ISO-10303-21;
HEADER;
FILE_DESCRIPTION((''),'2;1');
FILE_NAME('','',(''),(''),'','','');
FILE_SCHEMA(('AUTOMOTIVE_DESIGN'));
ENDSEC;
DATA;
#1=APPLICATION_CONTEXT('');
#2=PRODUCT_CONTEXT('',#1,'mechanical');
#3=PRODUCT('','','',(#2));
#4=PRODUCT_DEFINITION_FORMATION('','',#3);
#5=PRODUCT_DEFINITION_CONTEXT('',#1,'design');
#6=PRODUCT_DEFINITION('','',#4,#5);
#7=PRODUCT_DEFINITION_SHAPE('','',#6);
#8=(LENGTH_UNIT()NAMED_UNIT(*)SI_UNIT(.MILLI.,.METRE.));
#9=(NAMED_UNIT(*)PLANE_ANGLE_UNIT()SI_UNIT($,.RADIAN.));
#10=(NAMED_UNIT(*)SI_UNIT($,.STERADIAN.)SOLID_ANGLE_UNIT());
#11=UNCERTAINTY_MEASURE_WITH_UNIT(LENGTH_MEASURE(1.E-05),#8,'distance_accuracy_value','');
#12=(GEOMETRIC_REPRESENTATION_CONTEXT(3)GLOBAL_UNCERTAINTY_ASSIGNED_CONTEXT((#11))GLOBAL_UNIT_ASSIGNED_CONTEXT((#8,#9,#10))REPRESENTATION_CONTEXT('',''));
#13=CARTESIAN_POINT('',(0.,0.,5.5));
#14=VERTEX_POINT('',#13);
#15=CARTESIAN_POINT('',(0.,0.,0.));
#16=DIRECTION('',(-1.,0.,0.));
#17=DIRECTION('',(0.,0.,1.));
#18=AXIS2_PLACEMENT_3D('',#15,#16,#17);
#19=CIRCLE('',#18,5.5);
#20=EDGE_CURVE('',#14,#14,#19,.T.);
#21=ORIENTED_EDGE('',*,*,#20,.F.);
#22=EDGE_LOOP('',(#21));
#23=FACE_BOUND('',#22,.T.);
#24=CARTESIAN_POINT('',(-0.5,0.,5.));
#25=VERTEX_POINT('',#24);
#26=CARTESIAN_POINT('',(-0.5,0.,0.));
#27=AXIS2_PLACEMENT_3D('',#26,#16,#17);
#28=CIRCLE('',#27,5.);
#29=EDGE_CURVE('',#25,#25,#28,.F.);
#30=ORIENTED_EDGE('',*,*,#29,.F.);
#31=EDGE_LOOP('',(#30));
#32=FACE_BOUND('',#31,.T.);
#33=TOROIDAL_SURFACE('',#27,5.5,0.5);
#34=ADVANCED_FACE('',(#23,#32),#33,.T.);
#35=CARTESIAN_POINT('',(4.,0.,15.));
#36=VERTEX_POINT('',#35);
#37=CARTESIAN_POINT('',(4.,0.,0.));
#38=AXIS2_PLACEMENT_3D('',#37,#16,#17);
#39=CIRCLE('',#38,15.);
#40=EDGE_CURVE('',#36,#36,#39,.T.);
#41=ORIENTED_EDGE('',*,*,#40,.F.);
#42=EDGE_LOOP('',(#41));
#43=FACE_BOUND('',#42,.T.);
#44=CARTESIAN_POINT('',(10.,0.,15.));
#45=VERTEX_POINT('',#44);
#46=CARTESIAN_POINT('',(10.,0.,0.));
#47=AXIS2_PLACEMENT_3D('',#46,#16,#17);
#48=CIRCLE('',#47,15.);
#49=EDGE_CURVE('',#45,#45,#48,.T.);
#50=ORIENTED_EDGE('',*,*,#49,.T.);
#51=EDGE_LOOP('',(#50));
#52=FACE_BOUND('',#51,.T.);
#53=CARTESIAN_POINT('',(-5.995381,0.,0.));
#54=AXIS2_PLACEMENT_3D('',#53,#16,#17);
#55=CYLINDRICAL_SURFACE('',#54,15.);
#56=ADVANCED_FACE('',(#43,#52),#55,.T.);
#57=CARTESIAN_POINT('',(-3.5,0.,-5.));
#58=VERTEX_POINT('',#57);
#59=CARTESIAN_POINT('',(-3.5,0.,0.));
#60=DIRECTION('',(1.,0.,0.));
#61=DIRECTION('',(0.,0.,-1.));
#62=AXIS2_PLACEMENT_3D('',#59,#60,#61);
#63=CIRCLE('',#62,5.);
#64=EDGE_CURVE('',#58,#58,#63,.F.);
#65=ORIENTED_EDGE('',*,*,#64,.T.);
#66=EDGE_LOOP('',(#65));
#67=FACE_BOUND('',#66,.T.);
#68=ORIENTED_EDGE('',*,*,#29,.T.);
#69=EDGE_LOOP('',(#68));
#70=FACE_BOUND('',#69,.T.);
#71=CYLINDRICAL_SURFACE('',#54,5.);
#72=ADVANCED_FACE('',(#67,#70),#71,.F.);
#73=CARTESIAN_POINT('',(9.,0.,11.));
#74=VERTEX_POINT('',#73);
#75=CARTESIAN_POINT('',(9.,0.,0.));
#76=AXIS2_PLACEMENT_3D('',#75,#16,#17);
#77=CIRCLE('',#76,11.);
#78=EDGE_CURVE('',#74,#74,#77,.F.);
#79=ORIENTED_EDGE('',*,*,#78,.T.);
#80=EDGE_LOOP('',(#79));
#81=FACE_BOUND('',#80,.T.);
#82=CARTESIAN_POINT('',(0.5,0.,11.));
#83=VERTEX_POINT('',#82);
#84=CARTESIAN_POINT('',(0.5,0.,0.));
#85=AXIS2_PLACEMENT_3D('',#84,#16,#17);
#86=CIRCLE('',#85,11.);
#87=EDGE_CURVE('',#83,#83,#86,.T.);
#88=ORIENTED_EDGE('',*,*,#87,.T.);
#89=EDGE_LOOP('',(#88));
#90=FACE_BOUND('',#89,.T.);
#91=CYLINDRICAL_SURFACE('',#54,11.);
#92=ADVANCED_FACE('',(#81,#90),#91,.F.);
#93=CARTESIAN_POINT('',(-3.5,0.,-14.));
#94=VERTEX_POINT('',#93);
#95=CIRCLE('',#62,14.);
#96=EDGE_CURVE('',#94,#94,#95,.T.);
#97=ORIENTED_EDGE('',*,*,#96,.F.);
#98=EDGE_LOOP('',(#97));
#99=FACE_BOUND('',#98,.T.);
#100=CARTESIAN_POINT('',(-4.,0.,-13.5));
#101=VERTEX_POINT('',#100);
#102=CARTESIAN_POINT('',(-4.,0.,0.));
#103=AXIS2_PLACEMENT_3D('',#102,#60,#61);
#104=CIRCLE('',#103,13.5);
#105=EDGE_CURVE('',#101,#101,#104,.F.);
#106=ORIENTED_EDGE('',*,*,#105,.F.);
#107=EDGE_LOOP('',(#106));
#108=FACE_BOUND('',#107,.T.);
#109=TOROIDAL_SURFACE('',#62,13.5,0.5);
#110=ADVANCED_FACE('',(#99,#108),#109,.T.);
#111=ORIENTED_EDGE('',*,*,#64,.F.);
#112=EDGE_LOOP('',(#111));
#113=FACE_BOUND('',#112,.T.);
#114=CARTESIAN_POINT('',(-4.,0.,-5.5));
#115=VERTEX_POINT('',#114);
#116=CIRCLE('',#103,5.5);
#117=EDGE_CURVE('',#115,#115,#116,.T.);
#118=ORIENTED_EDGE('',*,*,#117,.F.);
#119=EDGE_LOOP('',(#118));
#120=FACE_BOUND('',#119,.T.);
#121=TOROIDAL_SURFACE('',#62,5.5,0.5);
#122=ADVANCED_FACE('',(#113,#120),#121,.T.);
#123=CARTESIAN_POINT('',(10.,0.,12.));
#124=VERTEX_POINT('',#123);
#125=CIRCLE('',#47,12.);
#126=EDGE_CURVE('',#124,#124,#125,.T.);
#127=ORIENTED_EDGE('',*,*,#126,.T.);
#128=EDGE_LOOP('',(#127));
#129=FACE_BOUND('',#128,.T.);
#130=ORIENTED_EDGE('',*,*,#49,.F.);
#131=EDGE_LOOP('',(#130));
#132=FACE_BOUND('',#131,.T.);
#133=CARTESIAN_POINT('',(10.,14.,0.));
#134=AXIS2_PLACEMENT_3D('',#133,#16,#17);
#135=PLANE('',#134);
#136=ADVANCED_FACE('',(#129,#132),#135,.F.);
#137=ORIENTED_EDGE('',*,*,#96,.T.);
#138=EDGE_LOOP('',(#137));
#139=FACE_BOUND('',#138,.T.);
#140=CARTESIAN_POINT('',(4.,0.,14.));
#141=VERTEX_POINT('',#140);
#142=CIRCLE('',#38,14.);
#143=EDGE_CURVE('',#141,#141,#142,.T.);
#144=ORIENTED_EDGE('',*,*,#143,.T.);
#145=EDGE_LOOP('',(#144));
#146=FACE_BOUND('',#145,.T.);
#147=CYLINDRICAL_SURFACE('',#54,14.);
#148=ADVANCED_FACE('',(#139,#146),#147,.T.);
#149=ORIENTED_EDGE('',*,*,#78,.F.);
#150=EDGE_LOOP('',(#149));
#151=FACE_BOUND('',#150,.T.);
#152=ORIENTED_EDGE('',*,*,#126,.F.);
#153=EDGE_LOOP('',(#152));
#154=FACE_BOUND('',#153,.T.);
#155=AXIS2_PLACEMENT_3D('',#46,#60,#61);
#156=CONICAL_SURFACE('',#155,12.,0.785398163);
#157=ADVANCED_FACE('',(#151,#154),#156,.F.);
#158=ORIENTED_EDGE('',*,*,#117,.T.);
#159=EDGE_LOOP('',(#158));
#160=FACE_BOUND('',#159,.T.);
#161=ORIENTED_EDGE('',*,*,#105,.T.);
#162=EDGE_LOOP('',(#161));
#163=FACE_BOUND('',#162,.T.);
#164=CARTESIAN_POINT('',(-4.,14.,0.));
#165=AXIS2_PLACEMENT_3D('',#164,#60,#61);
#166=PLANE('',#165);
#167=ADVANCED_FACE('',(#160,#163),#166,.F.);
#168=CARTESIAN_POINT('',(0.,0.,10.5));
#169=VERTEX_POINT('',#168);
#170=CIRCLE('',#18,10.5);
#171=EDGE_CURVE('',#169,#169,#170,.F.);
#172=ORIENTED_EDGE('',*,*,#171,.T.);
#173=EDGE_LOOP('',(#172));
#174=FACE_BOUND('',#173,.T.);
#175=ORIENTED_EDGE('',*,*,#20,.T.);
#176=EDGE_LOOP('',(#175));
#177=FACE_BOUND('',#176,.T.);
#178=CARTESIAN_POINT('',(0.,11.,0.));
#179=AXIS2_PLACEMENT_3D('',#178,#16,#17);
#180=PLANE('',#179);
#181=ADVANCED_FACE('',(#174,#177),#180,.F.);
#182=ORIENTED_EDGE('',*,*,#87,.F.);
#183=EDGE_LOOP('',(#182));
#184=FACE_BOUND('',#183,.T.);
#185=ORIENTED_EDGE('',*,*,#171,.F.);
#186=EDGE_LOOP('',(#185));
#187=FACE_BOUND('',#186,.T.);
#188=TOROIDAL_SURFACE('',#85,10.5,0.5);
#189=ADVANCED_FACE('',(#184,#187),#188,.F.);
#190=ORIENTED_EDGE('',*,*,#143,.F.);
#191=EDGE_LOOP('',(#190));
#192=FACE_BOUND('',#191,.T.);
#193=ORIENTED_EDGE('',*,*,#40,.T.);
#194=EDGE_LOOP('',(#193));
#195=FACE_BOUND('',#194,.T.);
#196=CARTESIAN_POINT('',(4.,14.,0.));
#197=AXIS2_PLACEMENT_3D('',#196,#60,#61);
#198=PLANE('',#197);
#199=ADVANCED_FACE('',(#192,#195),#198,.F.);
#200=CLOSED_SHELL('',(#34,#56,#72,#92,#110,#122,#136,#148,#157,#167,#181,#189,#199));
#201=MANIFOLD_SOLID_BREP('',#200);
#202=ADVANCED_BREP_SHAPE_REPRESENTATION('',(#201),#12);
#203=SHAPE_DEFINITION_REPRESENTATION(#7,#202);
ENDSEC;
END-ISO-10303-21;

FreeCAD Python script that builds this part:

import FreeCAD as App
import Part
import Sketcher
Q = App.Units.Quantity


def edges_at(feature, points):
    """Names of the edges that pass closest to the given points."""
    edges = feature.Shape.Edges
    near = lambda p: min(range(len(edges)), key=lambda i: edges[i].distToShape(Part.Vertex(*p))[0])
    return sorted({f"Edge{near(p) + 1}" for p in points})


def add_polygon(sketch, points):
    """Adds a closed chain of lines whose ends are joined by coincident constraints."""
    first, n = sketch.GeometryCount, len(points)
    for a, b in zip(points, points[1:] + points[:1]):
        sketch.addGeometry(Part.LineSegment(App.Vector(*a, 0), App.Vector(*b, 0)), False)
    for i in range(n):
        sketch.addConstraint(Sketcher.Constraint("Coincident", first + i, 2, first + (i + 1) % n, 1))

doc = App.newDocument("Part")
params = doc.addObject("Spreadsheet::Sheet", "Params")
for row, (alias, value) in enumerate([
    ("sketch1_width", "10 mm"),
    ("sketch1_width2", "6 mm"),
    ("sketch1_width3", "8 mm"),
    ("sketch1_height", "1 mm"),
    ("revolution_angle", "360 deg"),
    ("fillet_radius", "0.5 mm"),
    ("chamfer_size", "1 mm"),
], start=1):
    params.set(f"A{row}", alias)
    params.set(f"B{row}", "=" + value)
    params.setAlias(f"B{row}", alias)

body = doc.addObject("PartDesign::Body", "Body")

sketch1 = doc.addObject("Sketcher::SketchObject", "Sketch")
body.addObject(sketch1)
sketch1.AttachmentSupport = (doc.XY_Plane, [""])
sketch1.MapMode = "FlatFace"
add_polygon(sketch1, [(0, 11), (10, 11), (10, 15), (4, 15), (4, 14), (-4, 14), (-4, 5), (0, 5)])
sketch1.addConstraint([
    Sketcher.Constraint("Horizontal", 0),
    Sketcher.Constraint("Vertical", 1),
    Sketcher.Constraint("Horizontal", 2),
    Sketcher.Constraint("Vertical", 3),
    Sketcher.Constraint("Horizontal", 4),
    Sketcher.Constraint("Vertical", 5),
    Sketcher.Constraint("Horizontal", 6),
    Sketcher.Constraint("Vertical", 7),
    Sketcher.Constraint("PointOnObject", 6, 2, -2),
    Sketcher.Constraint("Equal", 6, 1),
    Sketcher.Constraint("Equal", 2, 7),
    Sketcher.Constraint("DistanceX", 0, 1, 0, 2, Q("10 mm")),
    Sketcher.Constraint("DistanceX", 2, 2, 2, 1, Q("6 mm")),
    Sketcher.Constraint("DistanceX", 4, 2, 4, 1, Q("8 mm")),
    Sketcher.Constraint("DistanceY", 3, 2, 3, 1, Q("1 mm")),
    Sketcher.Constraint("DistanceY", -1, 1, 0, 2, Q("11 mm")),
])
sketch1.setExpression("Constraints[19]", "Params.sketch1_width")
sketch1.setExpression("Constraints[20]", "Params.sketch1_width2")
sketch1.setExpression("Constraints[21]", "Params.sketch1_width3")
sketch1.setExpression("Constraints[22]", "Params.sketch1_height")
revolution = doc.addObject("PartDesign::Revolution", "Revolution")
body.addObject(revolution)
revolution.Profile = sketch1
revolution.ReferenceAxis = (sketch1, ["H_Axis"])
revolution.setExpression("Angle", "Params.revolution_angle")
doc.recompute()

fillet = doc.addObject("PartDesign::Fillet", "Fillet")
body.addObject(fillet)
fillet.Base = (revolution, edges_at(revolution, [
    (0, -11, 0),
    (0, -5, 0),
    (-4, -5, 0),
    (-4, -14, 0),
]))
fillet.setExpression("Radius", "Params.fillet_radius")
doc.recompute()

chamfer = doc.addObject("PartDesign::Chamfer", "Chamfer")
body.addObject(chamfer)
chamfer.Base = (fillet, edges_at(fillet, [(10, -11, 0)]))
chamfer.setExpression("Size", "Params.chamfer_size")

doc.recompute()
